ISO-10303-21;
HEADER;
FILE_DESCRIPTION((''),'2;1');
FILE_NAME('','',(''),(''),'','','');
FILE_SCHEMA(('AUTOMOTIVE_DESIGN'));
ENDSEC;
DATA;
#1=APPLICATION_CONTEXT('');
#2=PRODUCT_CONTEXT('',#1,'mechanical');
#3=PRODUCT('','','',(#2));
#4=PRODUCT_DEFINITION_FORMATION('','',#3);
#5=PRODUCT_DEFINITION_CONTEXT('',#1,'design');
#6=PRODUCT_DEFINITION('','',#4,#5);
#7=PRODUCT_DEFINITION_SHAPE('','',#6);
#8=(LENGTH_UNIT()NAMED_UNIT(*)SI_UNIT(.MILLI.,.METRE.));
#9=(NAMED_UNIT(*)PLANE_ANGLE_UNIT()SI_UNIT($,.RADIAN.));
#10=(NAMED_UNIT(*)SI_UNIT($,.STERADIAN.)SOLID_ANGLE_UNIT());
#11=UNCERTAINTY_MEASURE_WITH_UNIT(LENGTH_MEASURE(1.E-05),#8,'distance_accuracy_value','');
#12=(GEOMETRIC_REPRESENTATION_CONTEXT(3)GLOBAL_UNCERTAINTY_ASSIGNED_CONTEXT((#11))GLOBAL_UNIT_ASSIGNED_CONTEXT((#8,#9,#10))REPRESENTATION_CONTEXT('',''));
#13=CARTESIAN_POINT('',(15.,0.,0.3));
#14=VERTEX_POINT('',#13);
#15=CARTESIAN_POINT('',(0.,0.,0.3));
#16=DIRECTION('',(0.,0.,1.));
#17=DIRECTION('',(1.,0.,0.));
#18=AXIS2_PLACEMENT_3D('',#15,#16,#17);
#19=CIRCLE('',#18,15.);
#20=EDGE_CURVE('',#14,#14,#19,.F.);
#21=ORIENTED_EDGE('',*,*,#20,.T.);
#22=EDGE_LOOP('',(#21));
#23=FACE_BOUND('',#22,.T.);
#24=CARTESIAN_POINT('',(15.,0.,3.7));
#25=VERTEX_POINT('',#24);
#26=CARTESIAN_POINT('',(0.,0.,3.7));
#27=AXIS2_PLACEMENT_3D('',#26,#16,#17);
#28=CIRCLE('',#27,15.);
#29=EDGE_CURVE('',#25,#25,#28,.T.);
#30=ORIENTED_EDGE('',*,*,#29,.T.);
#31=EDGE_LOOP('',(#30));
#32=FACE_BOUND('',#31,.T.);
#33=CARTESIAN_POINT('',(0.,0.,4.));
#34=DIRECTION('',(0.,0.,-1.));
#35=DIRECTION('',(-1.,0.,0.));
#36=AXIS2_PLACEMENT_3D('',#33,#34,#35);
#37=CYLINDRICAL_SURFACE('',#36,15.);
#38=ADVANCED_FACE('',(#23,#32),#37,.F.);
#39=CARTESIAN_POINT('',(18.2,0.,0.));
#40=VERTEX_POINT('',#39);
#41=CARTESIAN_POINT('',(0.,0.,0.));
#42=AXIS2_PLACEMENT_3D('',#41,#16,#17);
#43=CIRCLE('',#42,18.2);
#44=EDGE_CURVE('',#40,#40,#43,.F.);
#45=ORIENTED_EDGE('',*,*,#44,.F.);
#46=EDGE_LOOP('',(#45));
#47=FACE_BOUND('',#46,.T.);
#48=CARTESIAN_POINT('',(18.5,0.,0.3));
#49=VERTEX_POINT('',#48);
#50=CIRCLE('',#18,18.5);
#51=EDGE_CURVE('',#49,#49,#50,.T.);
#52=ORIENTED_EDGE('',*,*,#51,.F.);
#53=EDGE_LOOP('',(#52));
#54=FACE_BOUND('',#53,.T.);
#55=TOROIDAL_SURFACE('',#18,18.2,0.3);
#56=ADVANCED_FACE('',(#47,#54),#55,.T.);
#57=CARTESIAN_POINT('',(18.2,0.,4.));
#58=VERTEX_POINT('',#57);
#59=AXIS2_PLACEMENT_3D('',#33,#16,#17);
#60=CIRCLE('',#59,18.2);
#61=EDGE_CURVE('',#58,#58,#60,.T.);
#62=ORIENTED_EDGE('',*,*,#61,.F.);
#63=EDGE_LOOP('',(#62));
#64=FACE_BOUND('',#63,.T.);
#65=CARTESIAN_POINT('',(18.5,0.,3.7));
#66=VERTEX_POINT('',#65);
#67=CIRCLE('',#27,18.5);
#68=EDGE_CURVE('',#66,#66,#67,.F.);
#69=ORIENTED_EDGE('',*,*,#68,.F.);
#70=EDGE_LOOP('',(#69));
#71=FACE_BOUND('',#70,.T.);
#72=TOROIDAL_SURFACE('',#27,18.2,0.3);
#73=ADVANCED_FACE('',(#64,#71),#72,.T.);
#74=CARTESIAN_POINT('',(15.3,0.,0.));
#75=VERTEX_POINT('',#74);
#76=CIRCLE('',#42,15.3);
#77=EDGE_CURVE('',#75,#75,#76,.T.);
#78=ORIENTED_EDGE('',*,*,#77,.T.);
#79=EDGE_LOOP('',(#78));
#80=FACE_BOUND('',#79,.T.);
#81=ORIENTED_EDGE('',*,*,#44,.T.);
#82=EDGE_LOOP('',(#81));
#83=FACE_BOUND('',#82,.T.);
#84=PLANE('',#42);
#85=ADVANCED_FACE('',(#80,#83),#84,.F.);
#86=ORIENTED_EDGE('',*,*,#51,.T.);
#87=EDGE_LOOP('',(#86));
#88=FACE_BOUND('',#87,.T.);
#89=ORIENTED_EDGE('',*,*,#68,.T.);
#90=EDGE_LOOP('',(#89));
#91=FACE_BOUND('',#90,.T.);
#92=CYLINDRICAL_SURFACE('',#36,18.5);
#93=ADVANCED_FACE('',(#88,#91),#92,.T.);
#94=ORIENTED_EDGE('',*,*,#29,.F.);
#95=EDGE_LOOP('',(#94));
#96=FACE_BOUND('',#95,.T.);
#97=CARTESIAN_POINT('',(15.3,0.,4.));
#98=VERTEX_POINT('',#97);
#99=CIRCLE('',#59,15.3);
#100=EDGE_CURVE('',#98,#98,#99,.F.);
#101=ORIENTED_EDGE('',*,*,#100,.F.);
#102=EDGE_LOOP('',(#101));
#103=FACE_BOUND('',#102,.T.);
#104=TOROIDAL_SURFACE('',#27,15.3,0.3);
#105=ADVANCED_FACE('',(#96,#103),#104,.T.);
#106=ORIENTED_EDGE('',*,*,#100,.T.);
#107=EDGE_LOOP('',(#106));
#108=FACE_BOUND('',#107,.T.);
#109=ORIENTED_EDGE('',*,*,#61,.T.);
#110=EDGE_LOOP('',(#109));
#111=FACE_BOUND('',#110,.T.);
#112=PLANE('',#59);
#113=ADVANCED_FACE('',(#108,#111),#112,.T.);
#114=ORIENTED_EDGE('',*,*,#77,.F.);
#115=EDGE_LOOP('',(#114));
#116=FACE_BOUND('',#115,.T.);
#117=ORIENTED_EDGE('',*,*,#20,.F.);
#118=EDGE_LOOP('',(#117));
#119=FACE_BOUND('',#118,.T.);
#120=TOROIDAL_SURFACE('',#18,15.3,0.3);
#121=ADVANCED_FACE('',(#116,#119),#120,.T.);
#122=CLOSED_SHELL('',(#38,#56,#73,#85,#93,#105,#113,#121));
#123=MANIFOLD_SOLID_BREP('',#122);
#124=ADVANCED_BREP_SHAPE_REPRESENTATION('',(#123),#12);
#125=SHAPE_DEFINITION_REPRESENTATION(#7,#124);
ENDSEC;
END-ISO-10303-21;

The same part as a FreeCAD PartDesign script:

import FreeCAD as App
import Part
import Sketcher
Q = App.Units.Quantity


def edges_at(feature, points):
    """Names of the edges that pass closest to the given points."""
    edges = feature.Shape.Edges
    near = lambda p: min(range(len(edges)), key=lambda i: edges[i].distToShape(Part.Vertex(*p))[0])
    return sorted({f"Edge{near(p) + 1}" for p in points})

doc = App.newDocument("Part")
params = doc.addObject("Spreadsheet::Sheet", "Params")
for row, (alias, value) in enumerate([
    ("sketch1_diameter", "37 mm"),
    ("sketch1_diameter2", "30 mm"),
    ("pad1_length", "4 mm"),
    ("fillet_radius", "0.3 mm"),
], start=1):
    params.set(f"A{row}", alias)
    params.set(f"B{row}", "=" + value)
    params.setAlias(f"B{row}", alias)

body = doc.addObject("PartDesign::Body", "Body")

# Sketch on XY plane
sketch1 = doc.addObject("Sketcher::SketchObject", "Sketch")
body.addObject(sketch1)
sketch1.AttachmentSupport = (doc.XY_Plane, [""])
sketch1.MapMode = "FlatFace"
sketch1.addGeometry([
    Part.Circle(App.Vector(0, 0, 0), App.Vector(0, 0, 1), 18.5),
    Part.Circle(App.Vector(0, 0, 0), App.Vector(0, 0, 1), 15),
], False)
sketch1.addConstraint([
    Sketcher.Constraint("Coincident", 0, 3, -1, 1),
    Sketcher.Constraint("Coincident", 1, 3, -1, 1),
    Sketcher.Constraint("Diameter", 0, Q("37 mm")),
    Sketcher.Constraint("Diameter", 1, Q("30 mm")),
])
sketch1.setExpression("Constraints[2]", "Params.sketch1_diameter")
sketch1.setExpression("Constraints[3]", "Params.sketch1_diameter2")
pad1 = doc.addObject("PartDesign::Pad", "Pad")
body.addObject(pad1)
pad1.Profile = sketch1
pad1.setExpression("Length", "Params.pad1_length")
doc.recompute()

fillet = doc.addObject("PartDesign::Fillet", "Fillet")
body.addObject(fillet)
fillet.Base = (pad1, edges_at(pad1, [
    (-18.5, 0, 0),
    (-18.5, 0, 4),
    (-15, 0, 0),
    (-15, 0, 4),
]))
fillet.setExpression("Radius", "Params.fillet_radius")

doc.recompute()
